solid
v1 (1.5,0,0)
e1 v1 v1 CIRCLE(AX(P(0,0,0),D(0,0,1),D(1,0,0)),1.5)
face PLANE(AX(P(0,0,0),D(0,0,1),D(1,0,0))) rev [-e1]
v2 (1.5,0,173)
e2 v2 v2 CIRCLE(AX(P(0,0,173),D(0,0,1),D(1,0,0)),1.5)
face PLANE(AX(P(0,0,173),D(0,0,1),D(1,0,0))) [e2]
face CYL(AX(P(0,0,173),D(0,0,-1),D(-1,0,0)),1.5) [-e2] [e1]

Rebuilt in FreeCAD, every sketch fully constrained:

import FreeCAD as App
import Part
import Sketcher

V = App.Vector
Q = App.Units.Quantity

doc = App.newDocument("Part")
body = doc.addObject("PartDesign::Body", "Body")

# Sketch on XY plane
sketch1 = doc.addObject("Sketcher::SketchObject", "Sketch")
body.addObject(sketch1)
sketch1.AttachmentSupport = (doc.XY_Plane, [""])
sketch1.MapMode = "FlatFace"
sketch1.addGeometry(Part.Circle(V(0, 0, 0), V(0, 0, 1), 1.5), False)
sketch1.addConstraint([
    Sketcher.Constraint("Coincident", 0, 3, -1, 1),
    Sketcher.Constraint("Diameter", 0, Q("3 mm")),
])
pad1 = doc.addObject("PartDesign::Pad", "Pad")
body.addObject(pad1)
pad1.Profile = sketch1
pad1.Length = 173

doc.recompute()
